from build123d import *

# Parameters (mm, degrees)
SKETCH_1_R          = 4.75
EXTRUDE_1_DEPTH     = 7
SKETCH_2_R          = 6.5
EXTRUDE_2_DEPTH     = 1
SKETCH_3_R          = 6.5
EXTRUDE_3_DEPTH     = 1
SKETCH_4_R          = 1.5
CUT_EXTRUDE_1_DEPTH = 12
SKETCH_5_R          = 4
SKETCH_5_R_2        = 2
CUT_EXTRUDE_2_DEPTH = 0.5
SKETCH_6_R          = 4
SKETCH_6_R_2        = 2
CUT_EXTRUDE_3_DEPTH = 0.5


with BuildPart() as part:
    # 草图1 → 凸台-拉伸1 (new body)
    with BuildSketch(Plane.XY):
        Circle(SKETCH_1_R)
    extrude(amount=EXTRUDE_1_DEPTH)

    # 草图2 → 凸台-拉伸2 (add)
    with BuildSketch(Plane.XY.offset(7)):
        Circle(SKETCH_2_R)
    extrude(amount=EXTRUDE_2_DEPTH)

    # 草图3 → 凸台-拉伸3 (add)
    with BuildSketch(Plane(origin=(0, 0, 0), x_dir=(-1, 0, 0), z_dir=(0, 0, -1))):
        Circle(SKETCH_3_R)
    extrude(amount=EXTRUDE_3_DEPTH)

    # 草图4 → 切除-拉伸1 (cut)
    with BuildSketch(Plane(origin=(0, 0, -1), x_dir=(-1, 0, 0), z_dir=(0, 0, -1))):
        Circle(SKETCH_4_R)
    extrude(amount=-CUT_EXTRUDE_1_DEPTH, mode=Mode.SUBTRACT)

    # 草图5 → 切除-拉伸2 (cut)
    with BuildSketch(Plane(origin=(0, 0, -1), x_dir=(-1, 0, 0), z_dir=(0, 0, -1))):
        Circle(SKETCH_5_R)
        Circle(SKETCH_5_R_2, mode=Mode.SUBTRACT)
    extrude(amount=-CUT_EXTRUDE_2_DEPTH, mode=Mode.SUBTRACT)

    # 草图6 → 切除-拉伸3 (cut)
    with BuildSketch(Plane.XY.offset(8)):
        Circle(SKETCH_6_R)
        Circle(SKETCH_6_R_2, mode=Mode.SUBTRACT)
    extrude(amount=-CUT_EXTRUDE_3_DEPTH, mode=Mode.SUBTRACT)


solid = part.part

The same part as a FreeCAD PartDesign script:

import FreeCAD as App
import Part
import Sketcher
from FreeCAD import Vector
Q = App.Units.Quantity

doc = App.newDocument("Part")
body = doc.addObject("PartDesign::Body", "Body")

sketch1 = body.newObject("Sketcher::SketchObject", "Sketch")
sketch1.AttachmentSupport = (doc.getObject("XY_Plane"), [""])
sketch1.MapMode = "FlatFace"
sketch1.addGeometry(Part.Circle(Vector(0, 0, 0), Vector(0, 0, 1), 4.8), False)
sketch1.addConstraint([
    Sketcher.Constraint("Coincident", 0, 3, -1, 1),
    Sketcher.Constraint("Diameter", 0, Q("9.5 mm")),
])
pad1 = body.newObject("PartDesign::Pad", "Pad")
pad1.Profile = sketch1
pad1.Length = 7

sketch2 = body.newObject("Sketcher::SketchObject", "Sketch001")
sketch2.AttachmentSupport = (doc.getObject("XY_Plane"), [""])
sketch2.MapMode = "FlatFace"
sketch2.AttachmentOffset = App.Placement(Vector(0, 0, 7), App.Rotation())
sketch2.addGeometry(Part.Circle(Vector(0, 0, 0), Vector(0, 0, 1), 6), False)
sketch2.addConstraint([
    Sketcher.Constraint("Coincident", 0, 3, -1, 1),
    Sketcher.Constraint("Diameter", 0, Q("13 mm")),
])
pad2 = body.newObject("PartDesign::Pad", "Pad001")
pad2.Profile = sketch2
pad2.Length = 1

sketch3 = body.newObject("Sketcher::SketchObject", "Sketch002")
sketch3.AttachmentSupport = (doc.getObject("XY_Plane"), [""])
sketch3.MapMode = "FlatFace"
sketch3.addGeometry(Part.Circle(Vector(0, 0, 0), Vector(0, 0, 1), 6), False)
sketch3.addConstraint([
    Sketcher.Constraint("Coincident", 0, 3, -1, 1),
    Sketcher.Constraint("Diameter", 0, Q("13 mm")),
])
pad3 = body.newObject("PartDesign::Pad", "Pad002")
pad3.Profile = sketch3
pad3.Length = 1
pad3.Reversed = True

sketch4 = body.newObject("Sketcher::SketchObject", "Sketch003")
sketch4.AttachmentSupport = (doc.getObject("XY_Plane"), [""])
sketch4.MapMode = "FlatFace"
sketch4.AttachmentOffset = App.Placement(Vector(0, 0, -1), App.Rotation())
sketch4.addGeometry(Part.Circle(Vector(0, 0, 0), Vector(0, 0, 1), 1.5), False)
sketch4.addConstraint([
    Sketcher.Constraint("Coincident", 0, 3, -1, 1),
    Sketcher.Constraint("Diameter", 0, Q("3 mm")),
])
pocket1 = body.newObject("PartDesign::Pocket", "Pocket")
pocket1.Profile = sketch4
pocket1.Length = 12
pocket1.Reversed = True

sketch5 = body.newObject("Sketcher::SketchObject", "Sketch004")
sketch5.AttachmentSupport = (doc.getObject("XY_Plane"), [""])
sketch5.MapMode = "FlatFace"
sketch5.AttachmentOffset = App.Placement(Vector(0, 0, -1), App.Rotation())
sketch5.addGeometry([
    Part.Circle(Vector(0, 0, 0), Vector(0, 0, 1), 4),
    Part.Circle(Vector(0, 0, 0), Vector(0, 0, 1), 2),
], False)
sketch5.addConstraint([
    Sketcher.Constraint("Coincident", 0, 3, -1, 1),
    Sketcher.Constraint("Coincident", 1, 3, -1, 1),
    Sketcher.Constraint("Diameter", 0, Q("8 mm")),
    Sketcher.Constraint("Diameter", 1, Q("4 mm")),
])
pocket2 = body.newObject("PartDesign::Pocket", "Pocket001")
pocket2.Profile = sketch5
pocket2.Length = 0.5
pocket2.Reversed = True

sketch6 = body.newObject("Sketcher::SketchObject", "Sketch005")
sketch6.AttachmentSupport = (doc.getObject("XY_Plane"), [""])
sketch6.MapMode = "FlatFace"
sketch6.AttachmentOffset = App.Placement(Vector(0, 0, 8), App.Rotation())
sketch6.addGeometry([
    Part.Circle(Vector(0, 0, 0), Vector(0, 0, 1), 4),
    Part.Circle(Vector(0, 0, 0), Vector(0, 0, 1), 2),
], False)
sketch6.addConstraint([
    Sketcher.Constraint("Coincident", 0, 3, -1, 1),
    Sketcher.Constraint("Coincident", 1, 3, -1, 1),
    Sketcher.Constraint("Diameter", 0, Q("8 mm")),
    Sketcher.Constraint("Diameter", 1, Q("4 mm")),
])
pocket3 = body.newObject("PartDesign::Pocket", "Pocket002")
pocket3.Profile = sketch6
pocket3.Length = 0.5

doc.recompute()
